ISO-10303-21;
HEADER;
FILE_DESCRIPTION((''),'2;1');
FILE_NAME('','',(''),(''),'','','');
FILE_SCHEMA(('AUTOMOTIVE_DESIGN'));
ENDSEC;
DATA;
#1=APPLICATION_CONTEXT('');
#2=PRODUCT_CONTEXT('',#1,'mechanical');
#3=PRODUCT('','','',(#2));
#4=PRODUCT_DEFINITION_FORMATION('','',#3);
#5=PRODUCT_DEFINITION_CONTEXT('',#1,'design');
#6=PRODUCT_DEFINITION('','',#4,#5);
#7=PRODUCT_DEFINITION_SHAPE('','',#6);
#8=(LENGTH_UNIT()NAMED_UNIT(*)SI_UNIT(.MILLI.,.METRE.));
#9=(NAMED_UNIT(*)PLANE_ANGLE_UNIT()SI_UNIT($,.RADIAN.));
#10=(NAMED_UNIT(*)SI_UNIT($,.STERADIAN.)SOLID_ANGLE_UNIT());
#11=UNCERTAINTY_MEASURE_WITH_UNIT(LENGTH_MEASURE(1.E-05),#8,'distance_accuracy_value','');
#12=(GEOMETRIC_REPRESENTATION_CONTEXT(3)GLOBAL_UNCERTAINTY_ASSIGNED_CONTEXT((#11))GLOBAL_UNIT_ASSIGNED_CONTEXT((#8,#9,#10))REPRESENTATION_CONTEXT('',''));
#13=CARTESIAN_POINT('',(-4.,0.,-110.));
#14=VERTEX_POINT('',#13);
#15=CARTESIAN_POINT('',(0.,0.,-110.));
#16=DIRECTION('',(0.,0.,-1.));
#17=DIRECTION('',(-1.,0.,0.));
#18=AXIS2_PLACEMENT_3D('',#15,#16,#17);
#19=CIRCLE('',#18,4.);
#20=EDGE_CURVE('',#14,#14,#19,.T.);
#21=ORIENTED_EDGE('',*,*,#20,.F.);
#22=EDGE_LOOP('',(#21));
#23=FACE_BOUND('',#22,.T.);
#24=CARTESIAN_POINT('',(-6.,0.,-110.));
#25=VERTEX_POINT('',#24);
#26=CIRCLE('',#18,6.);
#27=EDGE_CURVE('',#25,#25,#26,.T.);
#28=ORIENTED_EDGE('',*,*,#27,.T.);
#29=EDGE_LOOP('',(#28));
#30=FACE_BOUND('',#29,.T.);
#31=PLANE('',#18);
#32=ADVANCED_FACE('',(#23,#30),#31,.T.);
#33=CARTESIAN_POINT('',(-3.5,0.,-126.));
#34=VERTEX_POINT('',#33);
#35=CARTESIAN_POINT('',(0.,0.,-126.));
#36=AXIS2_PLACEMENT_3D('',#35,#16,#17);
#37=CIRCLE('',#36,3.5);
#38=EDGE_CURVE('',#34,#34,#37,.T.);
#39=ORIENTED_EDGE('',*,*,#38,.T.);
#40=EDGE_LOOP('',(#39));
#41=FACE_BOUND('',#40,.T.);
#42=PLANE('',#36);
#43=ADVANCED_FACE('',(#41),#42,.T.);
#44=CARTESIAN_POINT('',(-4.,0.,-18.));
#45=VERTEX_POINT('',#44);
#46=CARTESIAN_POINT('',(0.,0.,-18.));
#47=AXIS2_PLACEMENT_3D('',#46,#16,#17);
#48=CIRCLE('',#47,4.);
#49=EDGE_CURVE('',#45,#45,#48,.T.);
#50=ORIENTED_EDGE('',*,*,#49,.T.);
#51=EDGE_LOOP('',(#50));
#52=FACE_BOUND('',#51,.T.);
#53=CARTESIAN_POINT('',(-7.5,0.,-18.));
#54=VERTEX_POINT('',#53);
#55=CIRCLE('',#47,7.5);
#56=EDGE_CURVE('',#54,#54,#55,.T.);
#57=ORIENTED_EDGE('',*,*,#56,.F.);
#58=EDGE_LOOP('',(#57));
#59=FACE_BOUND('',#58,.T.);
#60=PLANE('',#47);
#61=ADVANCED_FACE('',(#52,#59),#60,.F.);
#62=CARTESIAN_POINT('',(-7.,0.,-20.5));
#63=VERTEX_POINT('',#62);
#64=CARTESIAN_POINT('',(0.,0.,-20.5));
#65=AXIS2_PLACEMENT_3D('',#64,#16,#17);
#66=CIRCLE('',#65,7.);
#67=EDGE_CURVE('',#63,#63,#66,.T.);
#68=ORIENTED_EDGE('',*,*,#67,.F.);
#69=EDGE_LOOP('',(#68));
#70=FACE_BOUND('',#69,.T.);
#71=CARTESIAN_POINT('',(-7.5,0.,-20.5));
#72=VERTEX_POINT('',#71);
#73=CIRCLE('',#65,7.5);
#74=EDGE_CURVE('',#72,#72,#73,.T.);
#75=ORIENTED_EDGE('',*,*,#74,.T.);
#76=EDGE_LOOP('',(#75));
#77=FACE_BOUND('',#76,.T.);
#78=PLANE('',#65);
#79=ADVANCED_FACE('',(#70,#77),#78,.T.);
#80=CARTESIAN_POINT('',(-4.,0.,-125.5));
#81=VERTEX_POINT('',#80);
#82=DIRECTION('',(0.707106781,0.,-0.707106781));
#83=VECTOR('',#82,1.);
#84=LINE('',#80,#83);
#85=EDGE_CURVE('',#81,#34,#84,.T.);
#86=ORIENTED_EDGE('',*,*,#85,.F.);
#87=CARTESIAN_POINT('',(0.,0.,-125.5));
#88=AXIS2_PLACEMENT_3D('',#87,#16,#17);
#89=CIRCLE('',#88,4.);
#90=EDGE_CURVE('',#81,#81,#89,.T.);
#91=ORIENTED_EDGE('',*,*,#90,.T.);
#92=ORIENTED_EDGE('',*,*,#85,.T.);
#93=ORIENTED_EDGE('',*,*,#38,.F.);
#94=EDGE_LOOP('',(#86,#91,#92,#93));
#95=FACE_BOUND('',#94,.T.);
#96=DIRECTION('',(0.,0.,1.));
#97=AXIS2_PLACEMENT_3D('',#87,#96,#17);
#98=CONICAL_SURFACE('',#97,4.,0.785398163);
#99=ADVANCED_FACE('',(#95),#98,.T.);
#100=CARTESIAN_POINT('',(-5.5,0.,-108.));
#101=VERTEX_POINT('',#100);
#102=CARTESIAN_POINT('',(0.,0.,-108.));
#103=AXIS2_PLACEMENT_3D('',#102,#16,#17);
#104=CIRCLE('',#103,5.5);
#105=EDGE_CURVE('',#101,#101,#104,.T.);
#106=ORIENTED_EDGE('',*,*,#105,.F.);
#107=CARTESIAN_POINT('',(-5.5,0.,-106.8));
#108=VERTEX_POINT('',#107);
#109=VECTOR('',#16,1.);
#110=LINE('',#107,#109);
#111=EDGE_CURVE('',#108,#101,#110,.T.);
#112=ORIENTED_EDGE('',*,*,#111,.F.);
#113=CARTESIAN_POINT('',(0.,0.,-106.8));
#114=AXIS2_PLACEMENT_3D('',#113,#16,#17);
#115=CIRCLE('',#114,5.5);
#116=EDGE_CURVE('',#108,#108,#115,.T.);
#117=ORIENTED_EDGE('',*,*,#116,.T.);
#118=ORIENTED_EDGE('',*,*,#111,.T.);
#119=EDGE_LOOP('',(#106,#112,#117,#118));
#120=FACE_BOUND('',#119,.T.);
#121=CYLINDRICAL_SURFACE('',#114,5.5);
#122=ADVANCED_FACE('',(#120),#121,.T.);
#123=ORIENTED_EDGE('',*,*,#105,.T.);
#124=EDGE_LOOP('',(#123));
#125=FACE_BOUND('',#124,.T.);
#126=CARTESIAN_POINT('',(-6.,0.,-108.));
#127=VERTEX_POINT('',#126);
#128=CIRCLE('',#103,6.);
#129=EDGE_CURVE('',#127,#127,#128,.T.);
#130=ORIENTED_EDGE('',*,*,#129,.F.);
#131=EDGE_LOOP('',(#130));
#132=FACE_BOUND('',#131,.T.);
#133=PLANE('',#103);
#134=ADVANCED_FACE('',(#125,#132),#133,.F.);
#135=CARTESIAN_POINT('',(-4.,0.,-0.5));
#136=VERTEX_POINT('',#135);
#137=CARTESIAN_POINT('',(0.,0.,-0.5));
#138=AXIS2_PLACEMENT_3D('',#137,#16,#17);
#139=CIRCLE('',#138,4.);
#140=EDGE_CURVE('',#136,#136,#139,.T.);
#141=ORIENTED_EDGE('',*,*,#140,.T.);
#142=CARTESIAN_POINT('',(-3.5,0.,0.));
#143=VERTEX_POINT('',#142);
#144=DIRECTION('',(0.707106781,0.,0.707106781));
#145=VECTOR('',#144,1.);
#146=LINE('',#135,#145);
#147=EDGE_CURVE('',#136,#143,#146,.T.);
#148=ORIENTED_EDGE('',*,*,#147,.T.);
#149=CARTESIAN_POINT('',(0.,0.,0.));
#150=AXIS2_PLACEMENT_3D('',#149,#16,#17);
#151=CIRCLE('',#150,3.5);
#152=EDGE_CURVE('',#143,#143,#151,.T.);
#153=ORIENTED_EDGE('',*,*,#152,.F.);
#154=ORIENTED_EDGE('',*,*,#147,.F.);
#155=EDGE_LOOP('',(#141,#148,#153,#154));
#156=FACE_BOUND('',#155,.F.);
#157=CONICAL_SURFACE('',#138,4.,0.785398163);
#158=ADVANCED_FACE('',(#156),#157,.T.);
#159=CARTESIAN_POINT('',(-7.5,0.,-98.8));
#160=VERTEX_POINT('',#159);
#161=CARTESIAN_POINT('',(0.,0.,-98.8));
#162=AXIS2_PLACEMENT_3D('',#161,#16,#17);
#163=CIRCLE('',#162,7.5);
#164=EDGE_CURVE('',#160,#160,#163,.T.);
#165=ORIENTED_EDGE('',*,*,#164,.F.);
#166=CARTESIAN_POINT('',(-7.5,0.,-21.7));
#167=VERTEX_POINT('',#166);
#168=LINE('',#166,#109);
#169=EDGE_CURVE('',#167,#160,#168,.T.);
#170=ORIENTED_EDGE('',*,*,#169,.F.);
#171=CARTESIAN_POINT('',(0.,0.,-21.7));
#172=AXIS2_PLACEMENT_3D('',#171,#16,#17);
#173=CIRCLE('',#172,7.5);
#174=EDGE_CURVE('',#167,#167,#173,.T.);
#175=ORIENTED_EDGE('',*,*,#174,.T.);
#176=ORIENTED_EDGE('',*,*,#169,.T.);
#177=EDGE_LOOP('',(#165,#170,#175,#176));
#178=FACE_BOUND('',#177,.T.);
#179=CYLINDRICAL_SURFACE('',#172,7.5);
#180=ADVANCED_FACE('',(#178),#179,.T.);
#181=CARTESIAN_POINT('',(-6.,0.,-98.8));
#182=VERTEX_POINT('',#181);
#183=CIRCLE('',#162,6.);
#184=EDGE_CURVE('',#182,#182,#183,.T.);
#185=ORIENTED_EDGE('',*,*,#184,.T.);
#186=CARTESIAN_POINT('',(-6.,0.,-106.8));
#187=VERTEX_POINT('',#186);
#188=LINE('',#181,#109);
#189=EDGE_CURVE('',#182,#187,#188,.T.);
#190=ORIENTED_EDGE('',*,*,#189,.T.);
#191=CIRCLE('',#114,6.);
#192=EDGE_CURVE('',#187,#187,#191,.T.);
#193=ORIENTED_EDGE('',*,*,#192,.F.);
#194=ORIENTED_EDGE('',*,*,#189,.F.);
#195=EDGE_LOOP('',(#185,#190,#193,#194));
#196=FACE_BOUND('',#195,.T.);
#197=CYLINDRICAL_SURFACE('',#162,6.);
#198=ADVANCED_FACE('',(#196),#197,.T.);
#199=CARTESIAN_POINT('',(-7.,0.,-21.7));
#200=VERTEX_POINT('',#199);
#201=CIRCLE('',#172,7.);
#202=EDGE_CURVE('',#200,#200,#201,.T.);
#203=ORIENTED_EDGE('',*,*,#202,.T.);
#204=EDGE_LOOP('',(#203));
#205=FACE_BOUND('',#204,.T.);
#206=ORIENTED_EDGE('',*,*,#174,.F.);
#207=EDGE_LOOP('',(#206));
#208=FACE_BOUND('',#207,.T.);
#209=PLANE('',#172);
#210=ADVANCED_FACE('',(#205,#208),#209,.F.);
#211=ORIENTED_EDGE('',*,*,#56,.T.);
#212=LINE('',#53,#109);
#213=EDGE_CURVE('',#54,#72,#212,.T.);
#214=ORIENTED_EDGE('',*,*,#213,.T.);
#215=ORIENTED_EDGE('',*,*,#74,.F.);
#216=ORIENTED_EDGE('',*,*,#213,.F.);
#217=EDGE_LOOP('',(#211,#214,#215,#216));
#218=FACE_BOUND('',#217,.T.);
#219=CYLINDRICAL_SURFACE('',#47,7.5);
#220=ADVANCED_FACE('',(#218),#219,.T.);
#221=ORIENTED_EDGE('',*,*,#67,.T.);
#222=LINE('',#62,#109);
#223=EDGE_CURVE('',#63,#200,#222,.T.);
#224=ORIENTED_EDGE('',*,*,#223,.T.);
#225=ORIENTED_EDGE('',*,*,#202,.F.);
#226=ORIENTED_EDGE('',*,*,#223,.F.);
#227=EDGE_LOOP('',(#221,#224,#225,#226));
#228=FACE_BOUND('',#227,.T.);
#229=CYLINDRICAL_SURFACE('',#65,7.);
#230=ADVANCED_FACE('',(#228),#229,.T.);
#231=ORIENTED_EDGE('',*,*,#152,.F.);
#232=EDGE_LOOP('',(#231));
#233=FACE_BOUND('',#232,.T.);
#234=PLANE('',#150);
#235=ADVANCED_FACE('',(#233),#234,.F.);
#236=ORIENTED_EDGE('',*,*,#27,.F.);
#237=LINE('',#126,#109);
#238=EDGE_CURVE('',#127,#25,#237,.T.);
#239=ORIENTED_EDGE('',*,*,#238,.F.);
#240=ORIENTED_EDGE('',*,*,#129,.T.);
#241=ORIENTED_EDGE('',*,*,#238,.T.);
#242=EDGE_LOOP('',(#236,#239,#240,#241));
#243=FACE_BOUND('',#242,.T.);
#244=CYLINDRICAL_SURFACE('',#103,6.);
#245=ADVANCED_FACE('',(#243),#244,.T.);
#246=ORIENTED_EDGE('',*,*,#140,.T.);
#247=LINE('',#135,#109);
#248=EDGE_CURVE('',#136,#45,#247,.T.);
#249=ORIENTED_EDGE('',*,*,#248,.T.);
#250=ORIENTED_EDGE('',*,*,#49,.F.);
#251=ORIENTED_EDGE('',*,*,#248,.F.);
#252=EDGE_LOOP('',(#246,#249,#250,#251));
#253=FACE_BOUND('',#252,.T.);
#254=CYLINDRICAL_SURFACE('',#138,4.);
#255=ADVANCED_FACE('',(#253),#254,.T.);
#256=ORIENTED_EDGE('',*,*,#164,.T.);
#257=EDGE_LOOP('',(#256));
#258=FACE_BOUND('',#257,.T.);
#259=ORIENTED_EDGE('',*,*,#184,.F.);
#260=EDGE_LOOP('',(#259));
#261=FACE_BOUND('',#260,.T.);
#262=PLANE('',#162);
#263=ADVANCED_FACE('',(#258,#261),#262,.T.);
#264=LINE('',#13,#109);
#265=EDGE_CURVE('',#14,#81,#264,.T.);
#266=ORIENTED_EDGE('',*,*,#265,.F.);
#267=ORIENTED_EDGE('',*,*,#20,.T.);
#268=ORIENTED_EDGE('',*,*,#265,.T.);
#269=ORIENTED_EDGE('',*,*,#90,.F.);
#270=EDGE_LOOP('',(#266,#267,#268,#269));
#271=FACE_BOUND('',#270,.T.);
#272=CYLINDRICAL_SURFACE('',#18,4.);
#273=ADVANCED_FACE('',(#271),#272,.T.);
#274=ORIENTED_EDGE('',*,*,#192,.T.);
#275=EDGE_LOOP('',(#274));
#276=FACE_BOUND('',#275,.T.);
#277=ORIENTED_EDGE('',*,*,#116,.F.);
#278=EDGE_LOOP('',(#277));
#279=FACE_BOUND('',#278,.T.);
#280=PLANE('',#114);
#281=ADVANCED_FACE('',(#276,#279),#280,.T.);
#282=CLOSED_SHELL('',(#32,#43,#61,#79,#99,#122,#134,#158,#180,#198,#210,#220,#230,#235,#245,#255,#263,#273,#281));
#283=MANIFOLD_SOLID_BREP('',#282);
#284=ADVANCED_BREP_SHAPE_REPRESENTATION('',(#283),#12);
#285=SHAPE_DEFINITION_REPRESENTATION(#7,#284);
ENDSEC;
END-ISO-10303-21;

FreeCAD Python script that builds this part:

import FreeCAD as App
import Part
import Sketcher
from FreeCAD import Vector
Q = App.Units.Quantity


def add_polygon(sketch, points):
    """Adds a closed chain of lines whose ends are joined by coincident constraints."""
    first, n = sketch.GeometryCount, len(points)
    for a, b in zip(points, points[1:] + points[:1]):
        sketch.addGeometry(Part.LineSegment(App.Vector(*a, 0), App.Vector(*b, 0)), False)
    for i in range(n):
        sketch.addConstraint(Sketcher.Constraint("Coincident", first + i, 2, first + (i + 1) % n, 1))

doc = App.newDocument("Part")
body = doc.addObject("PartDesign::Body", "Body")

# Sketch on XZ plane
sketch1 = body.newObject("Sketcher::SketchObject", "Sketch")
sketch1.AttachmentSupport = (doc.getObject("XZ_Plane"), [""])
sketch1.MapMode = "FlatFace"
add_polygon(sketch1, [(-3.5, 0), (0, 0), (0, -126), (-3.5, -126), (-4, -125.5), (-4, -110), (-6, -110), (-6, -108), (-5.5, -108), (-5.5, -106.8), (-6, -106.8), (-6, -98.8), (-7.5, -98.8), (-7.5, -21.7), (-7, -21.7), (-7, -20.5), (-7.5, -20.5), (-7.5, -18), (-4, -18), (-4, -0.5)])  # lines 0-19
sketch1.addConstraint(Sketcher.Constraint("Horizontal", 0))
sketch1.addConstraint(Sketcher.Constraint("Vertical", 1))
sketch1.addConstraint(Sketcher.Constraint("Horizontal", 2))
sketch1.addConstraint(Sketcher.Constraint("Vertical", 4))
sketch1.addConstraint(Sketcher.Constraint("Horizontal", 5))
sketch1.addConstraint(Sketcher.Constraint("Vertical", 6))
sketch1.addConstraint(Sketcher.Constraint("Horizontal", 7))
sketch1.addConstraint(Sketcher.Constraint("Vertical", 8))
sketch1.addConstraint(Sketcher.Constraint("Horizontal", 9))
sketch1.addConstraint(Sketcher.Constraint("Vertical", 10))
sketch1.addConstraint(Sketcher.Constraint("Horizontal", 11))
sketch1.addConstraint(Sketcher.Constraint("Vertical", 12))
sketch1.addConstraint(Sketcher.Constraint("Horizontal", 13))
sketch1.addConstraint(Sketcher.Constraint("Vertical", 14))
sketch1.addConstraint(Sketcher.Constraint("Horizontal", 15))
sketch1.addConstraint(Sketcher.Constraint("Vertical", 16))
sketch1.addConstraint(Sketcher.Constraint("Horizontal", 17))
sketch1.addConstraint(Sketcher.Constraint("Vertical", 18))
sketch1.addConstraint(Sketcher.Constraint("Coincident", 0, 2, -1, 1))
sketch1.addConstraint(Sketcher.Constraint("Perpendicular", 3, 19))
sketch1.addConstraint(Sketcher.Constraint("Vertical", 6, 2, 9, 2))
sketch1.addConstraint(Sketcher.Constraint("Vertical", 12, 2, 15, 2))
sketch1.addConstraint(Sketcher.Constraint("Vertical", 4, 2, 17, 2))
sketch1.addConstraint(Sketcher.Constraint("Vertical", 2, 2, 19, 2))
sketch1.addConstraint(Sketcher.Constraint("Equal", 9, 13))
sketch1.addConstraint(Sketcher.Constraint("Equal", 2, 17))
sketch1.addConstraint(Sketcher.Constraint("Equal", 5, 6))
sketch1.addConstraint(Sketcher.Constraint("Equal", 8, 14))
sketch1.addConstraint(Sketcher.Constraint("Equal", 3, 19))
sketch1.addConstraint(Sketcher.Constraint("DistanceX", 5, 2, 5, 1, Q("2 mm")))
sketch1.addConstraint(Sketcher.Constraint("DistanceY", 1, 2, 1, 1, Q("126 mm")))
sketch1.addConstraint(Sketcher.Constraint("DistanceY", 10, 1, 10, 2, Q("8 mm")))
sketch1.addConstraint(Sketcher.Constraint("DistanceX", 0, 1, 0, 2, Q("3.5 mm")))
sketch1.addConstraint(Sketcher.Constraint("DistanceX", 7, 1, 7, 2, Q("0.5 mm")))
sketch1.addConstraint(Sketcher.Constraint("DistanceY", 8, 1, 8, 2, Q("1.2 mm")))
sketch1.addConstraint(Sketcher.Constraint("DistanceY", 16, 1, 16, 2, Q("2.5 mm")))
sketch1.addConstraint(Sketcher.Constraint("DistanceX", 3, 2, -1, 1, Q("4 mm")))
sketch1.addConstraint(Sketcher.Constraint("DistanceY", 16, 2, -1, 1, Q("18 mm")))
sketch1.addConstraint(Sketcher.Constraint("DistanceY", 2, 2, 4, 2, Q("16 mm")))
revolution = body.newObject("PartDesign::Revolution", "Revolution")
revolution.Profile = sketch1
revolution.ReferenceAxis = (sketch1, ["V_Axis"])
revolution.Angle = 360

doc.recompute()
